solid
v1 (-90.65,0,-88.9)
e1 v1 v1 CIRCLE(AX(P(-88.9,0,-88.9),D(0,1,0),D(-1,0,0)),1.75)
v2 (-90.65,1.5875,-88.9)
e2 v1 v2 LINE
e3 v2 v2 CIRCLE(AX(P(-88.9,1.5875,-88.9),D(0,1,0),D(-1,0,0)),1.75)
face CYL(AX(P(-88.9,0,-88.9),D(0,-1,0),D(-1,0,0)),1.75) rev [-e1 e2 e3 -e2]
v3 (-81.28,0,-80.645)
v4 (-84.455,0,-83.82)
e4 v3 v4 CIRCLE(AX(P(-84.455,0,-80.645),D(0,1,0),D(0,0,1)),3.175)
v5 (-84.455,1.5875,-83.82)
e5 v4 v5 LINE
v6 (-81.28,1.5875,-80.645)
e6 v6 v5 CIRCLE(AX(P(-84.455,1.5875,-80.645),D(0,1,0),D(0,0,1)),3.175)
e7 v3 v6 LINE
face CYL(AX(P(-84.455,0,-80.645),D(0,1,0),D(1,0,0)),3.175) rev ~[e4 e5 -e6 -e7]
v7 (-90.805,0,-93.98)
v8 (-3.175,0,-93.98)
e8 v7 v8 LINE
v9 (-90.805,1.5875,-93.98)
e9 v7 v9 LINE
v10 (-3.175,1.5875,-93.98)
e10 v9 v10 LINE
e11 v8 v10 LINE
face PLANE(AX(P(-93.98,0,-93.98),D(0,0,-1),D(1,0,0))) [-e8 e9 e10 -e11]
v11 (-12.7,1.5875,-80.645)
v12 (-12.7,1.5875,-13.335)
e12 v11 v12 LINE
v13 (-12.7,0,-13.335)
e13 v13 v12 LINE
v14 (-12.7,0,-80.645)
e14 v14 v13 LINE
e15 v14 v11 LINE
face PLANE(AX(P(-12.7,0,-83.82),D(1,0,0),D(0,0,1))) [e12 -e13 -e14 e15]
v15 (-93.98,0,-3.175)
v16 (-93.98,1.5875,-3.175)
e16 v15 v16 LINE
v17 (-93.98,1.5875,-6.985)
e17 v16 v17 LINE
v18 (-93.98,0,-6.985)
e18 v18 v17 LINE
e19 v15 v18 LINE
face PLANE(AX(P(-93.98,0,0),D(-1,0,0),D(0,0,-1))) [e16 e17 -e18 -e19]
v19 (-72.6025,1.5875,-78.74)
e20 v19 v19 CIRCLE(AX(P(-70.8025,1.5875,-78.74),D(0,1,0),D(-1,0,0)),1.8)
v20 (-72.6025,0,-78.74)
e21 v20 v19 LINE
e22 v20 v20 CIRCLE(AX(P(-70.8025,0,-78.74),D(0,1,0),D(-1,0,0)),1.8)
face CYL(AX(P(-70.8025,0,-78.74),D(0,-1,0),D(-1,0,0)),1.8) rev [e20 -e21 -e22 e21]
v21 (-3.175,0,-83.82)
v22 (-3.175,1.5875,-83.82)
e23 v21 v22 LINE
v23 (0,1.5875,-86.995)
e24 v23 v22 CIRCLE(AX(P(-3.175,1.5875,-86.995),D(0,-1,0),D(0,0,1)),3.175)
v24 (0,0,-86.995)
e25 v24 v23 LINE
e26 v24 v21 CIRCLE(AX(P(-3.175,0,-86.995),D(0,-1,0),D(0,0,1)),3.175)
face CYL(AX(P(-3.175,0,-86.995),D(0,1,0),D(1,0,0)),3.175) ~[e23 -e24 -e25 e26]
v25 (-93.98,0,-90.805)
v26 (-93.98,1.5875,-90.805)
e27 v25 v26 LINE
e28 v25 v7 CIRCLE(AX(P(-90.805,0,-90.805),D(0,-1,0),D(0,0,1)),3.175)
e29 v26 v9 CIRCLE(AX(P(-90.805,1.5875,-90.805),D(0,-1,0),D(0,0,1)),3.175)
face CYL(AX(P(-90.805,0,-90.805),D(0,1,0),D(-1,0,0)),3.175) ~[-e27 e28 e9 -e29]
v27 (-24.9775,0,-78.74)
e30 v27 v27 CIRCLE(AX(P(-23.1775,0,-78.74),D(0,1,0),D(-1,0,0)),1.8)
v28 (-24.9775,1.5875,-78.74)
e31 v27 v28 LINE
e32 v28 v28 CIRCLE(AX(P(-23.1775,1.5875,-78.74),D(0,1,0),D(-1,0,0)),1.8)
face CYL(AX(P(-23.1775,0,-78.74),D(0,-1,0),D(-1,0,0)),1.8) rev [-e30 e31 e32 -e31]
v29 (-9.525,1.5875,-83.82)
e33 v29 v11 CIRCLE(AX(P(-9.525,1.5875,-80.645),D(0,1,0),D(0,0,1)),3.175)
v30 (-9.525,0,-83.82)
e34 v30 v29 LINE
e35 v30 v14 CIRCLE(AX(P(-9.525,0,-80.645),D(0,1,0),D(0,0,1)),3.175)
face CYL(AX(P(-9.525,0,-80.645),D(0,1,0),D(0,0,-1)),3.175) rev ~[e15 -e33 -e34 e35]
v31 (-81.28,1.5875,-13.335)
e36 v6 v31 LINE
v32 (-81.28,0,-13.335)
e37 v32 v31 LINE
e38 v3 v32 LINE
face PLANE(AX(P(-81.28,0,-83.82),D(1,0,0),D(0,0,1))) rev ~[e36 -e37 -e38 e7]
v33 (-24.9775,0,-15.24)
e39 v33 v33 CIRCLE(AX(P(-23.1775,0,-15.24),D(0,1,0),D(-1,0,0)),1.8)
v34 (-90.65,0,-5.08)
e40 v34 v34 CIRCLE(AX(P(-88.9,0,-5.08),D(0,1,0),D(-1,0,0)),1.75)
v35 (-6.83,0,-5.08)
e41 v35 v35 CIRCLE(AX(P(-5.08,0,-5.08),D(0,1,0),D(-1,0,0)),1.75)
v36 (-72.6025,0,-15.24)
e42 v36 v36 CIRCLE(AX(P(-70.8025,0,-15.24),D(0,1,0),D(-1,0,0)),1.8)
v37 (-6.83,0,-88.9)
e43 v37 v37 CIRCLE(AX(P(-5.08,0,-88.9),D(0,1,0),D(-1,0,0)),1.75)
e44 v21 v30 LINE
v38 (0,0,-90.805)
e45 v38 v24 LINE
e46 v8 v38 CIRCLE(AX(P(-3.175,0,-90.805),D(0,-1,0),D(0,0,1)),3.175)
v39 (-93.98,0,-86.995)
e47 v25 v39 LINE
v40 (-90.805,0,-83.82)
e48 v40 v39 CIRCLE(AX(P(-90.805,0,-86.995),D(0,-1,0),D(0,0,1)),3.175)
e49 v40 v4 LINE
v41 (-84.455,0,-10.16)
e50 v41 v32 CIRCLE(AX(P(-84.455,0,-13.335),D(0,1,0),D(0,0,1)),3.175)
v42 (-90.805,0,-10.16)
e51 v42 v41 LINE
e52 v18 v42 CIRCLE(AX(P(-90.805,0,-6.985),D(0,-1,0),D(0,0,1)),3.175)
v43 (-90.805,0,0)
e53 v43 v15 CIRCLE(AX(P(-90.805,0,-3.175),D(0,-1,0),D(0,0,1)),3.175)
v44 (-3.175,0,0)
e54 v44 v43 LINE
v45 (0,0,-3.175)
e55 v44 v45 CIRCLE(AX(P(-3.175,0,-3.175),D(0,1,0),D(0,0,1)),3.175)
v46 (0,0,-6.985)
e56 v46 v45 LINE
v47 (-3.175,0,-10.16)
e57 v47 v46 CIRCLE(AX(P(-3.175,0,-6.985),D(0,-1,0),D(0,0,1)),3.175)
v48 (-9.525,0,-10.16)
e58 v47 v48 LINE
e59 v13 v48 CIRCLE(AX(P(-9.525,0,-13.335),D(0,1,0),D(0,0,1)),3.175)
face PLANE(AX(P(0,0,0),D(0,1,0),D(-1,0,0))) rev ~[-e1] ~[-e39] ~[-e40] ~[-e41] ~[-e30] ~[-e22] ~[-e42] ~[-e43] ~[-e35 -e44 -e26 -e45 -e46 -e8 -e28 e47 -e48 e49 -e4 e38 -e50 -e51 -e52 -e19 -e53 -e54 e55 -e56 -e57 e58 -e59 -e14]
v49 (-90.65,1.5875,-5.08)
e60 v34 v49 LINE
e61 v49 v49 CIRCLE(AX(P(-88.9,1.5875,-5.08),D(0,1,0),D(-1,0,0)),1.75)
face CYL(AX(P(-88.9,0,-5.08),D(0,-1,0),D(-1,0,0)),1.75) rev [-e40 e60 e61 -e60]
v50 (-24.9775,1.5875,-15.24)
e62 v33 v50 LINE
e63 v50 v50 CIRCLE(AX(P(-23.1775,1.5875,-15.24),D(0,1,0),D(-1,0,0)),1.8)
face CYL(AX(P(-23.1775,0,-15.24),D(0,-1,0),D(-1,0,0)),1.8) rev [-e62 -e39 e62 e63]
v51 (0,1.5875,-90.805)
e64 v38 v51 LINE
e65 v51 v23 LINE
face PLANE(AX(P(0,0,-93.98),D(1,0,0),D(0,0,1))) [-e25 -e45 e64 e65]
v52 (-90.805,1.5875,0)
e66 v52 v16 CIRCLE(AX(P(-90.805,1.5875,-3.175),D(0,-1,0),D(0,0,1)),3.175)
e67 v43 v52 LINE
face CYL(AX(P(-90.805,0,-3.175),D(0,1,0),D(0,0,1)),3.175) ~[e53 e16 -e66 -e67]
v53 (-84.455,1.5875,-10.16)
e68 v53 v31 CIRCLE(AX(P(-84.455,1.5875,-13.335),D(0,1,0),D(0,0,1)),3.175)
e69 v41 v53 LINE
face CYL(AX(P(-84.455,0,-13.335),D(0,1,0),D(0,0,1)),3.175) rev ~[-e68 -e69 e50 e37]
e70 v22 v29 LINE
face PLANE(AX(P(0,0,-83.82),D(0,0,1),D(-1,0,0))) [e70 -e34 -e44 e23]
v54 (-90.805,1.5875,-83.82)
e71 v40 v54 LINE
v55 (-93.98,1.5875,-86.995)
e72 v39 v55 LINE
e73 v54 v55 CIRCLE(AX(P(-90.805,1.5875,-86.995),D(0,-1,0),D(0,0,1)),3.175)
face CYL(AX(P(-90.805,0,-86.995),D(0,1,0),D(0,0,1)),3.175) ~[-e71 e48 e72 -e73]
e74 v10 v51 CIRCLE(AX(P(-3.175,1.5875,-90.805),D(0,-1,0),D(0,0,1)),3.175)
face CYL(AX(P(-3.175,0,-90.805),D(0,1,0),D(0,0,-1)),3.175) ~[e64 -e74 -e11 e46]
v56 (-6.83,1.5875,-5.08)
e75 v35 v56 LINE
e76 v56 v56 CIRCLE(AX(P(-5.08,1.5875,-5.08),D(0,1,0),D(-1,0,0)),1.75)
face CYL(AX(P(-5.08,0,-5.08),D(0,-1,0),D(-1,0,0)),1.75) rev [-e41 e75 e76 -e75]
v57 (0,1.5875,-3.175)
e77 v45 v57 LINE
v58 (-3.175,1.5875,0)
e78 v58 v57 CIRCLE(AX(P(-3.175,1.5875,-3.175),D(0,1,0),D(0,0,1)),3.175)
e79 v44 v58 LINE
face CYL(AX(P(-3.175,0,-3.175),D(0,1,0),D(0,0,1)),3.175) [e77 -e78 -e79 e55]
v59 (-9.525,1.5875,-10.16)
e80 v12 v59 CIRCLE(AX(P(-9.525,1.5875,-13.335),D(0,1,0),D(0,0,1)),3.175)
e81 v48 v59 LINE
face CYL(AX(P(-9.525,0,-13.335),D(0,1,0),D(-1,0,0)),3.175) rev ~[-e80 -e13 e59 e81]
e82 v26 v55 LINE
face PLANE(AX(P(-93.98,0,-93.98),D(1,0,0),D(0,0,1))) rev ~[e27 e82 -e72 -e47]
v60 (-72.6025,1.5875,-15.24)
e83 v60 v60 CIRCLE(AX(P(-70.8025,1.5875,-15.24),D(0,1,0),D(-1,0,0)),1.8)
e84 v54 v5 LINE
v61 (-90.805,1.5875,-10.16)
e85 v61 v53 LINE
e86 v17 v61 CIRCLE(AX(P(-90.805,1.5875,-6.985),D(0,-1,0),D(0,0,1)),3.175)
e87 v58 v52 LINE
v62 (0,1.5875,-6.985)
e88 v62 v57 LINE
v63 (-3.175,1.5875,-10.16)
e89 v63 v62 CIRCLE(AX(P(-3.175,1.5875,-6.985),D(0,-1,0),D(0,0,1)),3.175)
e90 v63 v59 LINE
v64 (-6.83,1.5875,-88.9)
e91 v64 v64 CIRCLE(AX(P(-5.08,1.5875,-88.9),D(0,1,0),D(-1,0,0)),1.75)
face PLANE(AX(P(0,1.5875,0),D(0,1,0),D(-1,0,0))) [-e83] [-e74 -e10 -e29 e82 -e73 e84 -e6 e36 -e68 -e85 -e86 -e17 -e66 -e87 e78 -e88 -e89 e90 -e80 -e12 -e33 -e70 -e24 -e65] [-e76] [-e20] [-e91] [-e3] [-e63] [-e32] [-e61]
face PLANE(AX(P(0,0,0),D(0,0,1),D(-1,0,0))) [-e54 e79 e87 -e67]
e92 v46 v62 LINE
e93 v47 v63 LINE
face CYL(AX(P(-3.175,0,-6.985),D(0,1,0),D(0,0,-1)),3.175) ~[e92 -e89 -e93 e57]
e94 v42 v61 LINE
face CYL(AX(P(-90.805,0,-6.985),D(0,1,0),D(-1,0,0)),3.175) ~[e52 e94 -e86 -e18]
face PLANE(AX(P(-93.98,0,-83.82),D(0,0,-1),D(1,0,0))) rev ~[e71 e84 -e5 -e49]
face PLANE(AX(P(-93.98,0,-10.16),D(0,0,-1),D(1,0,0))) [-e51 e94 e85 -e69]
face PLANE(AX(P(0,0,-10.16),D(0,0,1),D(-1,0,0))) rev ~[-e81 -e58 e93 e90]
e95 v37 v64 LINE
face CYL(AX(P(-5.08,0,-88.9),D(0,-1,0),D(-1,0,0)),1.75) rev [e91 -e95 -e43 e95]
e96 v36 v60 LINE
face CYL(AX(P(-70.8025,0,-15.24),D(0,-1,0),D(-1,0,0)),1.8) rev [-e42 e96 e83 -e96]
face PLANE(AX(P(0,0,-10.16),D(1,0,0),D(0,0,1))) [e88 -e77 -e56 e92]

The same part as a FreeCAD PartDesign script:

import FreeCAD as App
import Part
import Sketcher

V = App.Vector
Q = App.Units.Quantity


def edges_at(feature, points):
    """Names of the edges that pass closest to the given points."""
    edges = feature.Shape.Edges
    near = lambda p: min(range(len(edges)), key=lambda i: edges[i].distToShape(Part.Vertex(*p))[0])
    return sorted({f"Edge{near(p) + 1}" for p in points})


def add_polygon(sketch, points):
    """Adds a closed chain of lines whose ends are joined by coincident constraints."""
    first, n = sketch.GeometryCount, len(points)
    for a, b in zip(points, points[1:] + points[:1]):
        sketch.addGeometry(Part.LineSegment(App.Vector(*a, 0), App.Vector(*b, 0)), False)
    for i in range(n):
        sketch.addConstraint(Sketcher.Constraint("Coincident", first + i, 2, first + (i + 1) % n, 1))

doc = App.newDocument("Part")
body = doc.addObject("PartDesign::Body", "Body")

# Sketch on XZ plane
sketch1 = doc.addObject("Sketcher::SketchObject", "Sketch")
body.addObject(sketch1)
sketch1.AttachmentSupport = (doc.XZ_Plane, [""])
sketch1.MapMode = "FlatFace"
add_polygon(sketch1, [(-94, 0), (0, 0), (0, -10.2), (-12.7, -10.2), (-12.7, -83.8), (0, -83.8), (0, -94), (-94, -94), (-94, -83.8), (-81.3, -83.8), (-81.3, -10.2), (-94, -10.2)])  # lines 0-11
sketch1.addGeometry(Part.Circle(V(-5.1, -88.9, 0), V(0, 0, 1), 1.8), False)  # 12
sketch1.addGeometry(Part.Circle(V(-23.2, -78.7, 0), V(0, 0, 1), 1.8), False)  # 13
sketch1.addGeometry(Part.Circle(V(-88.9, -88.9, 0), V(0, 0, 1), 1.8), False)  # 14
sketch1.addGeometry(Part.Circle(V(-70.8, -78.7, 0), V(0, 0, 1), 1.8), False)  # 15
sketch1.addGeometry(Part.Circle(V(-23.2, -15.2, 0), V(0, 0, 1), 1.8), False)  # 16
sketch1.addGeometry(Part.Circle(V(-5.1, -5.1, 0), V(0, 0, 1), 1.8), False)  # 17
sketch1.addGeometry(Part.Circle(V(-70.8, -15.2, 0), V(0, 0, 1), 1.8), False)  # 18
sketch1.addGeometry(Part.Circle(V(-88.9, -5.1, 0), V(0, 0, 1), 1.8), False)  # 19
sketch1.addConstraint([
    Sketcher.Constraint("Horizontal", 0),
    Sketcher.Constraint("Vertical", 1),
    Sketcher.Constraint("Horizontal", 2),
    Sketcher.Constraint("Vertical", 3),
    Sketcher.Constraint("Horizontal", 4),
    Sketcher.Constraint("Vertical", 5),
    Sketcher.Constraint("Horizontal", 6),
    Sketcher.Constraint("Vertical", 7),
    Sketcher.Constraint("Horizontal", 8),
    Sketcher.Constraint("Vertical", 9),
    Sketcher.Constraint("Horizontal", 10),
    Sketcher.Constraint("Vertical", 11),
    Sketcher.Constraint("Coincident", 0, 2, -1, 1),
    Sketcher.Constraint("Equal", 12, 14),
    Sketcher.Constraint("Equal", 13, 15),
    Sketcher.Constraint("Equal", 15, 16),
    Sketcher.Constraint("Equal", 14, 17),
    Sketcher.Constraint("Equal", 16, 18),
    Sketcher.Constraint("Equal", 17, 19),
    Sketcher.Constraint("PointOnObject", 4, 2, -2),
    Sketcher.Constraint("Horizontal", 12, 3, 14, 3),
    Sketcher.Constraint("Horizontal", 13, 3, 15, 3),
    Sketcher.Constraint("Horizontal", 16, 3, 18, 3),
    Sketcher.Constraint("Horizontal", 17, 3, 19, 3),
    Sketcher.Constraint("Horizontal", 4, 2, 7, 2),
    Sketcher.Constraint("Horizontal", 2, 2, 9, 2),
    Sketcher.Constraint("Vertical", 13, 3, 16, 3),
    Sketcher.Constraint("Vertical", 12, 3, 17, 3),
    Sketcher.Constraint("Vertical", 15, 3, 18, 3),
    Sketcher.Constraint("Vertical", 14, 3, 19, 3),
    Sketcher.Constraint("Vertical", 7, 2, 10, 2),
    Sketcher.Constraint("Equal", 4, 8),
    Sketcher.Constraint("Equal", 1, 5),
    Sketcher.Constraint("DistanceX", 0, 1, 0, 2, Q("3.7 in")),
    Sketcher.Constraint("DistanceX", 2, 2, 2, 1, Q("0.5 in")),
    Sketcher.Constraint("DistanceY", 1, 2, 1, 1, Q("0.4 in")),
    Sketcher.Constraint("DistanceY", 3, 2, 3, 1, Q("2.9 in")),
    Sketcher.Constraint("Diameter", 12, Q("0.1378 in")),
    Sketcher.Constraint("DistanceX", 12, 3, -1, 1, Q("0.2 in")),
    Sketcher.Constraint("DistanceY", 12, 3, -1, 1, Q("3.5 in")),
    Sketcher.Constraint("DistanceY", 13, 3, -1, 1, Q("3.1 in")),
    Sketcher.Constraint("DistanceX", 14, 3, -1, 1, Q("3.5 in")),
    Sketcher.Constraint("DistanceY", 16, 3, -1, 1, Q("0.6 in")),
    Sketcher.Constraint("DistanceY", 17, 3, -1, 1, Q("0.2 in")),
    Sketcher.Constraint("Diameter", 13, Q("3.6 mm")),
    Sketcher.Constraint("DistanceX", 15, 3, 13, 3, Q("1.875 in")),
    Sketcher.Constraint("DistanceX", 13, 3, -1, 1, Q("0.9125 in")),
])
pad1 = doc.addObject("PartDesign::Pad", "Pad")
body.addObject(pad1)
pad1.Profile = sketch1
pad1.Length = Q("0.0625 in")
pad1.Reversed = True
doc.recompute()

fillet = doc.addObject("PartDesign::Fillet", "Fillet")
body.addObject(fillet)
fillet.Base = (pad1, edges_at(pad1, [
    (0, 0.794, 0),
    (0, 0.794, -10.16),
    (-12.7, 0.794, -10.16),
    (-12.7, 0.794, -83.82),
    (0, 0.794, -83.82),
    (0, 0.794, -93.98),
    (-93.98, 0.794, 0),
    (-93.98, 0.794, -10.16),
    (-81.28, 0.794, -10.16),
    (-81.28, 0.794, -83.82),
    (-93.98, 0.794, -83.82),
    (-93.98, 0.794, -93.98),
]))
fillet.Radius = Q("0.125 in")

doc.recompute()
